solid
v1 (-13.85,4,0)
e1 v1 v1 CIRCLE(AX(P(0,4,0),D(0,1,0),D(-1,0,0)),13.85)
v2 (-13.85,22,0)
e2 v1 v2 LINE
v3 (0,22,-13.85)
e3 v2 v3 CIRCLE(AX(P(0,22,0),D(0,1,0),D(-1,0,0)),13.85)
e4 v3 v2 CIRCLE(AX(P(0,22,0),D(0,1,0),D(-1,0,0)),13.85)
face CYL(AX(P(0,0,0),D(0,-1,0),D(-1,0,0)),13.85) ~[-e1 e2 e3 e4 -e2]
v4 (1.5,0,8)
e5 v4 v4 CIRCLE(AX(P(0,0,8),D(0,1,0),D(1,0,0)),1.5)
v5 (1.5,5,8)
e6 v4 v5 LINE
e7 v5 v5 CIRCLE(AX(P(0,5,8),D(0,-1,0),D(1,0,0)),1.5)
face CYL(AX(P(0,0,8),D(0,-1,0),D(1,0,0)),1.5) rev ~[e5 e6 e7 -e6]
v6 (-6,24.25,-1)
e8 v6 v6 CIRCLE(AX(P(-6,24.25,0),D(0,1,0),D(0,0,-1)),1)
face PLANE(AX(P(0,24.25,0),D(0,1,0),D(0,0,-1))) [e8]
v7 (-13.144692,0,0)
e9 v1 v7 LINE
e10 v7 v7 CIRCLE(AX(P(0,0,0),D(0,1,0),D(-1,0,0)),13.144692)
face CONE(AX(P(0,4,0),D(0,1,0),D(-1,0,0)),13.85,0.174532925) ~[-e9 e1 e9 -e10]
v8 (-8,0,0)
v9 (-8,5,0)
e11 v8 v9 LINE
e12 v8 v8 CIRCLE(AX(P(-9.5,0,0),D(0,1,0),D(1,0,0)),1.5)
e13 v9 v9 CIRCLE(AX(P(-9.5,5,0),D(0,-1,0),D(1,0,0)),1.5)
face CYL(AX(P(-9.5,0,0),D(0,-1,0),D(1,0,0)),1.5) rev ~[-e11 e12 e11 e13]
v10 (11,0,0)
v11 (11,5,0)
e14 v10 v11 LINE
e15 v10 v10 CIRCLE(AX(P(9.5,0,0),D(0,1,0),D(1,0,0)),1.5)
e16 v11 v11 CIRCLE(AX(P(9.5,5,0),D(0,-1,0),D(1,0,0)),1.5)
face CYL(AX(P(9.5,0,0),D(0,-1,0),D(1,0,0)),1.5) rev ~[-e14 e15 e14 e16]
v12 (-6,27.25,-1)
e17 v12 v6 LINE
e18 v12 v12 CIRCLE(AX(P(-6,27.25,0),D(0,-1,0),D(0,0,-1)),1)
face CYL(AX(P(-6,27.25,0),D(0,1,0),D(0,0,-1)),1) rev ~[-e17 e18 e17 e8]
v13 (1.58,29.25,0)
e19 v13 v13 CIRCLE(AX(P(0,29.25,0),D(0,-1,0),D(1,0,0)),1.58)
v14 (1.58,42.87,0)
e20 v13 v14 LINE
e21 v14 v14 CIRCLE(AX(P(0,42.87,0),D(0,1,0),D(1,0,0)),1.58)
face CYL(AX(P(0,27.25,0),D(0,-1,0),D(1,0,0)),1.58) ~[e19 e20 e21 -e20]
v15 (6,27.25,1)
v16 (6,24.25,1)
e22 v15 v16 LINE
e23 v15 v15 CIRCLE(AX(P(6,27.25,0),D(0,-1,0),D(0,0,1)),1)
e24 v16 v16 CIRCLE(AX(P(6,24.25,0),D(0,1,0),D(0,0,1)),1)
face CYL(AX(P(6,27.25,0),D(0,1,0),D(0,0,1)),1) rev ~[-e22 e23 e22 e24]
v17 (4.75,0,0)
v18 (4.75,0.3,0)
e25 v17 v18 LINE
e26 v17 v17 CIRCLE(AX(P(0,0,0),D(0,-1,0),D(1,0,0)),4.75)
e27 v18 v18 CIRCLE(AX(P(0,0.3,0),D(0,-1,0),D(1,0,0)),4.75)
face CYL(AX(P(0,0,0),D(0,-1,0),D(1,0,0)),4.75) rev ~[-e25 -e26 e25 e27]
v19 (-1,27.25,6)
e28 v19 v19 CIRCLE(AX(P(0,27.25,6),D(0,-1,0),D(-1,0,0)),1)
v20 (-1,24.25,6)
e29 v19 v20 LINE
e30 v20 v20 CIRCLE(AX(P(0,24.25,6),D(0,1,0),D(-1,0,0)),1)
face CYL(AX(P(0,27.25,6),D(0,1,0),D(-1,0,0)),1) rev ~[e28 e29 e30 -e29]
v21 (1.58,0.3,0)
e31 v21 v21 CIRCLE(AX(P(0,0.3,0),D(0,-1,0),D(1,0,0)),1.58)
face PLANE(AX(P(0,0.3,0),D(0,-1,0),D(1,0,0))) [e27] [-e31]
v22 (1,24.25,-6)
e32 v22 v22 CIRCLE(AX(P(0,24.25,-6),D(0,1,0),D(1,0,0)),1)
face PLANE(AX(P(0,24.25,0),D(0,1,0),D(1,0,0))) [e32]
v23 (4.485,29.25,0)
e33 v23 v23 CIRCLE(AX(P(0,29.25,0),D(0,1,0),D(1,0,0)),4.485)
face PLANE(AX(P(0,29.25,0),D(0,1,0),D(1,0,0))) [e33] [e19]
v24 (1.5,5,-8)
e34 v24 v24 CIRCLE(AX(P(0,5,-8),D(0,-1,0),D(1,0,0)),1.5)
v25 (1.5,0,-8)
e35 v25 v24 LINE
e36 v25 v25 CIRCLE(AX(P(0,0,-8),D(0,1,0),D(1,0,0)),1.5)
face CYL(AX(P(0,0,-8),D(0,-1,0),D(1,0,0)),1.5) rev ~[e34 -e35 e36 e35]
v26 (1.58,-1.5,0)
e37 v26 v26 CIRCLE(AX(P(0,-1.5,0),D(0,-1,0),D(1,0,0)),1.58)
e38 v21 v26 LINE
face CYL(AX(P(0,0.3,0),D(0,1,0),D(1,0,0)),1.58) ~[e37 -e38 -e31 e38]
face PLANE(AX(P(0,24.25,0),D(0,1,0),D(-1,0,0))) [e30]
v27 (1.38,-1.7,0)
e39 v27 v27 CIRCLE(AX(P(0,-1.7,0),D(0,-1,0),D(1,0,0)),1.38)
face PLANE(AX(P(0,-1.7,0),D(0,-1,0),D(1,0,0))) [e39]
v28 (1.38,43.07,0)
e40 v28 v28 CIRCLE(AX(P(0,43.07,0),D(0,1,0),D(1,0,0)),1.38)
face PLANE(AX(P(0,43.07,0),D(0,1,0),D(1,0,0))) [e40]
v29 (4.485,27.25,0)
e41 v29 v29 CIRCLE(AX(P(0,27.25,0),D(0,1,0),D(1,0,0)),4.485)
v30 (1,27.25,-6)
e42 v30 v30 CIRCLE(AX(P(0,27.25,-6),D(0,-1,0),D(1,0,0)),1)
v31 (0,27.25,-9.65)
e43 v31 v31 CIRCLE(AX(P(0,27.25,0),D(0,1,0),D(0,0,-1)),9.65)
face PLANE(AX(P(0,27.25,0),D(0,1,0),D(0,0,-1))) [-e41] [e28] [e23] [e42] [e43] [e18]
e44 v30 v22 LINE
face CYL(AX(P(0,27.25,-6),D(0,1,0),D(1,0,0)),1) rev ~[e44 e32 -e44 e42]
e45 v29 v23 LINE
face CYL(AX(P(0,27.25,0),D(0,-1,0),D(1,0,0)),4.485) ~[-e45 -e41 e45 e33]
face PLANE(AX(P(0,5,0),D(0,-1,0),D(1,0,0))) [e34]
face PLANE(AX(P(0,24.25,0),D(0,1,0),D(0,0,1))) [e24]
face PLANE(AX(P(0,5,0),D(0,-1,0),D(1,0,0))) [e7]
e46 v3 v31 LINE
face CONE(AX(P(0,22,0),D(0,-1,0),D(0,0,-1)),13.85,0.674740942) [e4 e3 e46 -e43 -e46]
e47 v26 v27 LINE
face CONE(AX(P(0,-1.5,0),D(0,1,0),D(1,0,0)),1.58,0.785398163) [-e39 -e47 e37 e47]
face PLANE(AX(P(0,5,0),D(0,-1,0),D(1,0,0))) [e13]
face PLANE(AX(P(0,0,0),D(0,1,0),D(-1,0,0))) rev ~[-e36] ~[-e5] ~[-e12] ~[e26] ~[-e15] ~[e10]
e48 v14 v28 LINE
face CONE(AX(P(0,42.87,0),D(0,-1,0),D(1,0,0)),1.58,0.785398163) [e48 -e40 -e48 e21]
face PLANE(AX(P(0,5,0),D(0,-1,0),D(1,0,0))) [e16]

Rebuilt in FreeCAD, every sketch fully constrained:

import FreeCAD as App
import Part
import Sketcher
from FreeCAD import Vector
Q = App.Units.Quantity


def edges_at(feature, points):
    """Names of the edges that pass closest to the given points."""
    edges = feature.Shape.Edges
    near = lambda p: min(range(len(edges)), key=lambda i: edges[i].distToShape(Part.Vertex(*p))[0])
    return sorted({f"Edge{near(p) + 1}" for p in points})

doc = App.newDocument("Part")
params = doc.addObject("Spreadsheet::Sheet", "Params")
for row, (alias, value) in enumerate([
    ("sketch1_diameter", "27.7 mm"),
    ("pad1_length", "22 mm"),
    ("sketch2_width", "5.25 mm"),
    ("sketch2_height", "9.65 mm"),
    ("sketch2_height2", "13.85 mm"),
    ("revolution_angle", "360 deg"),
    ("chamfer_size", "4 mm"),
    ("sketch3_diameter", "3.16 mm"),
    ("pad2_length", "15.82 mm"),
    ("sketch4_diameter", "8.97 mm"),
    ("pad3_length", "2 mm"),
    ("sketch5_diameter", "2 mm"),
    ("pocket1_length", "3 mm"),
    ("sketch6_diameter", "3 mm"),
    ("pocket2_length", "5 mm"),
    ("sketch7_diameter", "9.5 mm"),
    ("pocket3_length", "0.3 mm"),
    ("sketch8_diameter", "3.16 mm"),
    ("pad4_length", "2 mm"),
    ("chamfer2_size", "0.2 mm"),
], start=1):
    params.set(f"A{row}", alias)
    params.set(f"B{row}", "=" + value)
    params.setAlias(f"B{row}", alias)

body = doc.addObject("PartDesign::Body", "Body")

sketch1 = doc.addObject("Sketcher::SketchObject", "Sketch")
body.addObject(sketch1)
sketch1.AttachmentSupport = (doc.XZ_Plane, [""])
sketch1.MapMode = "FlatFace"
sketch1.addGeometry(Part.Circle(Vector(0, 0, 0), Vector(0, 0, 1), 14), False)
sketch1.addConstraint(Sketcher.Constraint("Coincident", 0, 3, -1, 1))
sketch1.addConstraint(Sketcher.Constraint("Diameter", 0, Q("27.7 mm")))
sketch1.setExpression("Constraints[1]", "Params.sketch1_diameter")
pad1 = doc.addObject("PartDesign::Pad", "Pad")
body.addObject(pad1)
pad1.Profile = sketch1
pad1.setExpression("Length", "Params.pad1_length")
pad1.Reversed = True

sketch2 = doc.addObject("Sketcher::SketchObject", "Sketch001")
body.addObject(sketch2)
sketch2.AttachmentSupport = (doc.YZ_Plane, [""])
sketch2.MapMode = "FlatFace"
sketch2.addGeometry(Part.LineSegment(Vector(22, 0, 0), Vector(22, -14, 0)), False)
sketch2.addGeometry(Part.LineSegment(Vector(22, -14, 0), Vector(27, -10, 0)), False)
sketch2.addGeometry(Part.LineSegment(Vector(27, -10, 0), Vector(27, 0, 0)), False)
sketch2.addGeometry(Part.LineSegment(Vector(27, 0, 0), Vector(22, 0, 0)), False)
sketch2.addConstraint(Sketcher.Constraint("Coincident", 0, 2, 1, 1))
sketch2.addConstraint(Sketcher.Constraint("Coincident", 1, 2, 2, 1))
sketch2.addConstraint(Sketcher.Constraint("Coincident", 2, 2, 3, 1))
sketch2.addConstraint(Sketcher.Constraint("Coincident", 3, 2, 0, 1))
sketch2.addConstraint(Sketcher.Constraint("Vertical", 0))
sketch2.addConstraint(Sketcher.Constraint("Vertical", 2))
sketch2.addConstraint(Sketcher.Constraint("Horizontal", 3))
sketch2.addConstraint(Sketcher.Constraint("PointOnObject", 2, 2, -1))
sketch2.addConstraint(Sketcher.Constraint("DistanceX", 3, 2, 3, 1, Q("5.25 mm")))
sketch2.addConstraint(Sketcher.Constraint("DistanceY", 2, 1, 2, 2, Q("9.65 mm")))
sketch2.addConstraint(Sketcher.Constraint("DistanceX", -1, 1, 0, 2, Q("22 mm")))
sketch2.addConstraint(Sketcher.Constraint("DistanceY", 0, 2, 0, 1, Q("13.85 mm")))
sketch2.setExpression("Constraints[8]", "Params.sketch2_width")
sketch2.setExpression("Constraints[9]", "Params.sketch2_height")
sketch2.setExpression("Constraints[11]", "Params.sketch2_height2")
revolution = doc.addObject("PartDesign::Revolution", "Revolution")
body.addObject(revolution)
revolution.Profile = sketch2
revolution.ReferenceAxis = (sketch2, ["H_Axis"])
revolution.setExpression("Angle", "Params.revolution_angle")
doc.recompute()

chamfer = doc.addObject("PartDesign::Chamfer", "Chamfer")
body.addObject(chamfer)
chamfer.Base = (revolution, edges_at(revolution, [(13.85, 0, 0)]))
chamfer.ChamferType = "Distance and Angle"
chamfer.setExpression("Size", "Params.chamfer_size")
chamfer.Angle = 10

sketch3 = doc.addObject("Sketcher::SketchObject", "Sketch002")
body.addObject(sketch3)
sketch3.AttachmentSupport = (doc.XZ_Plane, [""])
sketch3.MapMode = "FlatFace"
sketch3.AttachmentOffset = App.Placement(Vector(0, 0, -27.25), App.Rotation())
sketch3.addGeometry(Part.Circle(Vector(0, 0, 0), Vector(0, 0, 1), 1.6), False)
sketch3.addConstraint(Sketcher.Constraint("Coincident", 0, 3, -1, 1))
sketch3.addConstraint(Sketcher.Constraint("Diameter", 0, Q("3.16 mm")))
sketch3.setExpression("Constraints[1]", "Params.sketch3_diameter")
pad2 = doc.addObject("PartDesign::Pad", "Pad001")
body.addObject(pad2)
pad2.Profile = sketch3
pad2.setExpression("Length", "Params.pad2_length")
pad2.Reversed = True

sketch4 = doc.addObject("Sketcher::SketchObject", "Sketch003")
body.addObject(sketch4)
sketch4.AttachmentSupport = (doc.XZ_Plane, [""])
sketch4.MapMode = "FlatFace"
sketch4.AttachmentOffset = App.Placement(Vector(0, 0, -27.25), App.Rotation())
sketch4.addGeometry(Part.Circle(Vector(0, 0, 0), Vector(0, 0, 1), 4.5), False)
sketch4.addConstraint(Sketcher.Constraint("Coincident", 0, 3, -1, 1))
sketch4.addConstraint(Sketcher.Constraint("Diameter", 0, Q("8.97 mm")))
sketch4.setExpression("Constraints[1]", "Params.sketch4_diameter")
pad3 = doc.addObject("PartDesign::Pad", "Pad002")
body.addObject(pad3)
pad3.Profile = sketch4
pad3.setExpression("Length", "Params.pad3_length")
pad3.Reversed = True

sketch5 = doc.addObject("Sketcher::SketchObject", "Sketch004")
body.addObject(sketch5)
sketch5.AttachmentSupport = (doc.XZ_Plane, [""])
sketch5.MapMode = "FlatFace"
sketch5.AttachmentOffset = App.Placement(Vector(0, 0, -27.25), App.Rotation())
sketch5.addGeometry(Part.Circle(Vector(0, -6, 0), Vector(0, 0, 1), 1), False)
sketch5.addConstraint(Sketcher.Constraint("PointOnObject", 0, 3, -2))
sketch5.addConstraint(Sketcher.Constraint("Diameter", 0, Q("2 mm")))
sketch5.addConstraint(Sketcher.Constraint("DistanceY", 0, 3, -1, 1, Q("6 mm")))
sketch5.setExpression("Constraints[1]", "Params.sketch5_diameter")
pocket1 = doc.addObject("PartDesign::Pocket", "Pocket")
body.addObject(pocket1)
pocket1.Profile = sketch5
pocket1.setExpression("Length", "Params.pocket1_length")
pocket1.Reversed = True
doc.recompute()

polarpattern = doc.addObject("PartDesign::PolarPattern", "PolarPattern")
body.addObject(polarpattern)
polarpattern.Originals = [pocket1]
polarpattern.Axis = (doc.Y_Axis, [""])
polarpattern.Angle = 360
polarpattern.Occurrences = 4
body.Tip = polarpattern

sketch6 = doc.addObject("Sketcher::SketchObject", "Sketch005")
body.addObject(sketch6)
sketch6.AttachmentSupport = (doc.XZ_Plane, [""])
sketch6.MapMode = "FlatFace"
sketch6.addGeometry(Part.Circle(Vector(-9.5, 0, 0), Vector(0, 0, 1), 1.5), False)
sketch6.addGeometry(Part.Circle(Vector(0, 8, 0), Vector(0, 0, 1), 1.5), False)
sketch6.addGeometry(Part.Circle(Vector(9.5, 0, 0), Vector(0, 0, 1), 1.5), False)
sketch6.addGeometry(Part.Circle(Vector(0, -8, 0), Vector(0, 0, 1), 1.5), False)
sketch6.addConstraint(Sketcher.Constraint("Equal", 0, 1))
sketch6.addConstraint(Sketcher.Constraint("Equal", 1, 2))
sketch6.addConstraint(Sketcher.Constraint("Equal", 2, 3))
sketch6.addConstraint(Sketcher.Constraint("Symmetric", 0, 3, 2, 3, -1, 1))
sketch6.addConstraint(Sketcher.Constraint("Symmetric", 1, 3, 3, 3, -1, 1))
sketch6.addConstraint(Sketcher.Constraint("PointOnObject", 0, 3, -1))
sketch6.addConstraint(Sketcher.Constraint("PointOnObject", 1, 3, -2))
sketch6.addConstraint(Sketcher.Constraint("Diameter", 0, Q("3 mm")))
sketch6.addConstraint(Sketcher.Constraint("DistanceY", -1, 1, 1, 3, Q("8 mm")))
sketch6.addConstraint(Sketcher.Constraint("DistanceX", 0, 3, -1, 1, Q("9.5 mm")))
sketch6.setExpression("Constraints[7]", "Params.sketch6_diameter")
pocket2 = doc.addObject("PartDesign::Pocket", "Pocket001")
body.addObject(pocket2)
pocket2.Profile = sketch6
pocket2.setExpression("Length", "Params.pocket2_length")

sketch7 = doc.addObject("Sketcher::SketchObject", "Sketch006")
body.addObject(sketch7)
sketch7.AttachmentSupport = (doc.XZ_Plane, [""])
sketch7.MapMode = "FlatFace"
sketch7.addGeometry(Part.Circle(Vector(0, 0, 0), Vector(0, 0, 1), 4.8), False)
sketch7.addConstraint(Sketcher.Constraint("Coincident", 0, 3, -1, 1))
sketch7.addConstraint(Sketcher.Constraint("Diameter", 0, Q("9.5 mm")))
sketch7.setExpression("Constraints[1]", "Params.sketch7_diameter")
pocket3 = doc.addObject("PartDesign::Pocket", "Pocket002")
body.addObject(pocket3)
pocket3.Profile = sketch7
pocket3.setExpression("Length", "Params.pocket3_length")

sketch8 = doc.addObject("Sketcher::SketchObject", "Sketch007")
body.addObject(sketch8)
sketch8.AttachmentSupport = (doc.XZ_Plane, [""])
sketch8.MapMode = "FlatFace"
sketch8.AttachmentOffset = App.Placement(Vector(0, 0, -0.3), App.Rotation())
sketch8.addGeometry(Part.Circle(Vector(0, 0, 0), Vector(0, 0, 1), 1.6), False)
sketch8.addConstraint(Sketcher.Constraint("Coincident", 0, 3, -1, 1))
sketch8.addConstraint(Sketcher.Constraint("Diameter", 0, Q("3.16 mm")))
sketch8.setExpression("Constraints[1]", "Params.sketch8_diameter")
pad4 = doc.addObject("PartDesign::Pad", "Pad003")
body.addObject(pad4)
pad4.Profile = sketch8
pad4.setExpression("Length", "Params.pad4_length")
doc.recompute()

chamfer2 = doc.addObject("PartDesign::Chamfer", "Chamfer001")
body.addObject(chamfer2)
chamfer2.Base = (pad4, edges_at(pad4, [(-1.58, -1.7, 0), (-1.58, 43.07, 0)]))
chamfer2.setExpression("Size", "Params.chamfer2_size")

doc.recompute()
